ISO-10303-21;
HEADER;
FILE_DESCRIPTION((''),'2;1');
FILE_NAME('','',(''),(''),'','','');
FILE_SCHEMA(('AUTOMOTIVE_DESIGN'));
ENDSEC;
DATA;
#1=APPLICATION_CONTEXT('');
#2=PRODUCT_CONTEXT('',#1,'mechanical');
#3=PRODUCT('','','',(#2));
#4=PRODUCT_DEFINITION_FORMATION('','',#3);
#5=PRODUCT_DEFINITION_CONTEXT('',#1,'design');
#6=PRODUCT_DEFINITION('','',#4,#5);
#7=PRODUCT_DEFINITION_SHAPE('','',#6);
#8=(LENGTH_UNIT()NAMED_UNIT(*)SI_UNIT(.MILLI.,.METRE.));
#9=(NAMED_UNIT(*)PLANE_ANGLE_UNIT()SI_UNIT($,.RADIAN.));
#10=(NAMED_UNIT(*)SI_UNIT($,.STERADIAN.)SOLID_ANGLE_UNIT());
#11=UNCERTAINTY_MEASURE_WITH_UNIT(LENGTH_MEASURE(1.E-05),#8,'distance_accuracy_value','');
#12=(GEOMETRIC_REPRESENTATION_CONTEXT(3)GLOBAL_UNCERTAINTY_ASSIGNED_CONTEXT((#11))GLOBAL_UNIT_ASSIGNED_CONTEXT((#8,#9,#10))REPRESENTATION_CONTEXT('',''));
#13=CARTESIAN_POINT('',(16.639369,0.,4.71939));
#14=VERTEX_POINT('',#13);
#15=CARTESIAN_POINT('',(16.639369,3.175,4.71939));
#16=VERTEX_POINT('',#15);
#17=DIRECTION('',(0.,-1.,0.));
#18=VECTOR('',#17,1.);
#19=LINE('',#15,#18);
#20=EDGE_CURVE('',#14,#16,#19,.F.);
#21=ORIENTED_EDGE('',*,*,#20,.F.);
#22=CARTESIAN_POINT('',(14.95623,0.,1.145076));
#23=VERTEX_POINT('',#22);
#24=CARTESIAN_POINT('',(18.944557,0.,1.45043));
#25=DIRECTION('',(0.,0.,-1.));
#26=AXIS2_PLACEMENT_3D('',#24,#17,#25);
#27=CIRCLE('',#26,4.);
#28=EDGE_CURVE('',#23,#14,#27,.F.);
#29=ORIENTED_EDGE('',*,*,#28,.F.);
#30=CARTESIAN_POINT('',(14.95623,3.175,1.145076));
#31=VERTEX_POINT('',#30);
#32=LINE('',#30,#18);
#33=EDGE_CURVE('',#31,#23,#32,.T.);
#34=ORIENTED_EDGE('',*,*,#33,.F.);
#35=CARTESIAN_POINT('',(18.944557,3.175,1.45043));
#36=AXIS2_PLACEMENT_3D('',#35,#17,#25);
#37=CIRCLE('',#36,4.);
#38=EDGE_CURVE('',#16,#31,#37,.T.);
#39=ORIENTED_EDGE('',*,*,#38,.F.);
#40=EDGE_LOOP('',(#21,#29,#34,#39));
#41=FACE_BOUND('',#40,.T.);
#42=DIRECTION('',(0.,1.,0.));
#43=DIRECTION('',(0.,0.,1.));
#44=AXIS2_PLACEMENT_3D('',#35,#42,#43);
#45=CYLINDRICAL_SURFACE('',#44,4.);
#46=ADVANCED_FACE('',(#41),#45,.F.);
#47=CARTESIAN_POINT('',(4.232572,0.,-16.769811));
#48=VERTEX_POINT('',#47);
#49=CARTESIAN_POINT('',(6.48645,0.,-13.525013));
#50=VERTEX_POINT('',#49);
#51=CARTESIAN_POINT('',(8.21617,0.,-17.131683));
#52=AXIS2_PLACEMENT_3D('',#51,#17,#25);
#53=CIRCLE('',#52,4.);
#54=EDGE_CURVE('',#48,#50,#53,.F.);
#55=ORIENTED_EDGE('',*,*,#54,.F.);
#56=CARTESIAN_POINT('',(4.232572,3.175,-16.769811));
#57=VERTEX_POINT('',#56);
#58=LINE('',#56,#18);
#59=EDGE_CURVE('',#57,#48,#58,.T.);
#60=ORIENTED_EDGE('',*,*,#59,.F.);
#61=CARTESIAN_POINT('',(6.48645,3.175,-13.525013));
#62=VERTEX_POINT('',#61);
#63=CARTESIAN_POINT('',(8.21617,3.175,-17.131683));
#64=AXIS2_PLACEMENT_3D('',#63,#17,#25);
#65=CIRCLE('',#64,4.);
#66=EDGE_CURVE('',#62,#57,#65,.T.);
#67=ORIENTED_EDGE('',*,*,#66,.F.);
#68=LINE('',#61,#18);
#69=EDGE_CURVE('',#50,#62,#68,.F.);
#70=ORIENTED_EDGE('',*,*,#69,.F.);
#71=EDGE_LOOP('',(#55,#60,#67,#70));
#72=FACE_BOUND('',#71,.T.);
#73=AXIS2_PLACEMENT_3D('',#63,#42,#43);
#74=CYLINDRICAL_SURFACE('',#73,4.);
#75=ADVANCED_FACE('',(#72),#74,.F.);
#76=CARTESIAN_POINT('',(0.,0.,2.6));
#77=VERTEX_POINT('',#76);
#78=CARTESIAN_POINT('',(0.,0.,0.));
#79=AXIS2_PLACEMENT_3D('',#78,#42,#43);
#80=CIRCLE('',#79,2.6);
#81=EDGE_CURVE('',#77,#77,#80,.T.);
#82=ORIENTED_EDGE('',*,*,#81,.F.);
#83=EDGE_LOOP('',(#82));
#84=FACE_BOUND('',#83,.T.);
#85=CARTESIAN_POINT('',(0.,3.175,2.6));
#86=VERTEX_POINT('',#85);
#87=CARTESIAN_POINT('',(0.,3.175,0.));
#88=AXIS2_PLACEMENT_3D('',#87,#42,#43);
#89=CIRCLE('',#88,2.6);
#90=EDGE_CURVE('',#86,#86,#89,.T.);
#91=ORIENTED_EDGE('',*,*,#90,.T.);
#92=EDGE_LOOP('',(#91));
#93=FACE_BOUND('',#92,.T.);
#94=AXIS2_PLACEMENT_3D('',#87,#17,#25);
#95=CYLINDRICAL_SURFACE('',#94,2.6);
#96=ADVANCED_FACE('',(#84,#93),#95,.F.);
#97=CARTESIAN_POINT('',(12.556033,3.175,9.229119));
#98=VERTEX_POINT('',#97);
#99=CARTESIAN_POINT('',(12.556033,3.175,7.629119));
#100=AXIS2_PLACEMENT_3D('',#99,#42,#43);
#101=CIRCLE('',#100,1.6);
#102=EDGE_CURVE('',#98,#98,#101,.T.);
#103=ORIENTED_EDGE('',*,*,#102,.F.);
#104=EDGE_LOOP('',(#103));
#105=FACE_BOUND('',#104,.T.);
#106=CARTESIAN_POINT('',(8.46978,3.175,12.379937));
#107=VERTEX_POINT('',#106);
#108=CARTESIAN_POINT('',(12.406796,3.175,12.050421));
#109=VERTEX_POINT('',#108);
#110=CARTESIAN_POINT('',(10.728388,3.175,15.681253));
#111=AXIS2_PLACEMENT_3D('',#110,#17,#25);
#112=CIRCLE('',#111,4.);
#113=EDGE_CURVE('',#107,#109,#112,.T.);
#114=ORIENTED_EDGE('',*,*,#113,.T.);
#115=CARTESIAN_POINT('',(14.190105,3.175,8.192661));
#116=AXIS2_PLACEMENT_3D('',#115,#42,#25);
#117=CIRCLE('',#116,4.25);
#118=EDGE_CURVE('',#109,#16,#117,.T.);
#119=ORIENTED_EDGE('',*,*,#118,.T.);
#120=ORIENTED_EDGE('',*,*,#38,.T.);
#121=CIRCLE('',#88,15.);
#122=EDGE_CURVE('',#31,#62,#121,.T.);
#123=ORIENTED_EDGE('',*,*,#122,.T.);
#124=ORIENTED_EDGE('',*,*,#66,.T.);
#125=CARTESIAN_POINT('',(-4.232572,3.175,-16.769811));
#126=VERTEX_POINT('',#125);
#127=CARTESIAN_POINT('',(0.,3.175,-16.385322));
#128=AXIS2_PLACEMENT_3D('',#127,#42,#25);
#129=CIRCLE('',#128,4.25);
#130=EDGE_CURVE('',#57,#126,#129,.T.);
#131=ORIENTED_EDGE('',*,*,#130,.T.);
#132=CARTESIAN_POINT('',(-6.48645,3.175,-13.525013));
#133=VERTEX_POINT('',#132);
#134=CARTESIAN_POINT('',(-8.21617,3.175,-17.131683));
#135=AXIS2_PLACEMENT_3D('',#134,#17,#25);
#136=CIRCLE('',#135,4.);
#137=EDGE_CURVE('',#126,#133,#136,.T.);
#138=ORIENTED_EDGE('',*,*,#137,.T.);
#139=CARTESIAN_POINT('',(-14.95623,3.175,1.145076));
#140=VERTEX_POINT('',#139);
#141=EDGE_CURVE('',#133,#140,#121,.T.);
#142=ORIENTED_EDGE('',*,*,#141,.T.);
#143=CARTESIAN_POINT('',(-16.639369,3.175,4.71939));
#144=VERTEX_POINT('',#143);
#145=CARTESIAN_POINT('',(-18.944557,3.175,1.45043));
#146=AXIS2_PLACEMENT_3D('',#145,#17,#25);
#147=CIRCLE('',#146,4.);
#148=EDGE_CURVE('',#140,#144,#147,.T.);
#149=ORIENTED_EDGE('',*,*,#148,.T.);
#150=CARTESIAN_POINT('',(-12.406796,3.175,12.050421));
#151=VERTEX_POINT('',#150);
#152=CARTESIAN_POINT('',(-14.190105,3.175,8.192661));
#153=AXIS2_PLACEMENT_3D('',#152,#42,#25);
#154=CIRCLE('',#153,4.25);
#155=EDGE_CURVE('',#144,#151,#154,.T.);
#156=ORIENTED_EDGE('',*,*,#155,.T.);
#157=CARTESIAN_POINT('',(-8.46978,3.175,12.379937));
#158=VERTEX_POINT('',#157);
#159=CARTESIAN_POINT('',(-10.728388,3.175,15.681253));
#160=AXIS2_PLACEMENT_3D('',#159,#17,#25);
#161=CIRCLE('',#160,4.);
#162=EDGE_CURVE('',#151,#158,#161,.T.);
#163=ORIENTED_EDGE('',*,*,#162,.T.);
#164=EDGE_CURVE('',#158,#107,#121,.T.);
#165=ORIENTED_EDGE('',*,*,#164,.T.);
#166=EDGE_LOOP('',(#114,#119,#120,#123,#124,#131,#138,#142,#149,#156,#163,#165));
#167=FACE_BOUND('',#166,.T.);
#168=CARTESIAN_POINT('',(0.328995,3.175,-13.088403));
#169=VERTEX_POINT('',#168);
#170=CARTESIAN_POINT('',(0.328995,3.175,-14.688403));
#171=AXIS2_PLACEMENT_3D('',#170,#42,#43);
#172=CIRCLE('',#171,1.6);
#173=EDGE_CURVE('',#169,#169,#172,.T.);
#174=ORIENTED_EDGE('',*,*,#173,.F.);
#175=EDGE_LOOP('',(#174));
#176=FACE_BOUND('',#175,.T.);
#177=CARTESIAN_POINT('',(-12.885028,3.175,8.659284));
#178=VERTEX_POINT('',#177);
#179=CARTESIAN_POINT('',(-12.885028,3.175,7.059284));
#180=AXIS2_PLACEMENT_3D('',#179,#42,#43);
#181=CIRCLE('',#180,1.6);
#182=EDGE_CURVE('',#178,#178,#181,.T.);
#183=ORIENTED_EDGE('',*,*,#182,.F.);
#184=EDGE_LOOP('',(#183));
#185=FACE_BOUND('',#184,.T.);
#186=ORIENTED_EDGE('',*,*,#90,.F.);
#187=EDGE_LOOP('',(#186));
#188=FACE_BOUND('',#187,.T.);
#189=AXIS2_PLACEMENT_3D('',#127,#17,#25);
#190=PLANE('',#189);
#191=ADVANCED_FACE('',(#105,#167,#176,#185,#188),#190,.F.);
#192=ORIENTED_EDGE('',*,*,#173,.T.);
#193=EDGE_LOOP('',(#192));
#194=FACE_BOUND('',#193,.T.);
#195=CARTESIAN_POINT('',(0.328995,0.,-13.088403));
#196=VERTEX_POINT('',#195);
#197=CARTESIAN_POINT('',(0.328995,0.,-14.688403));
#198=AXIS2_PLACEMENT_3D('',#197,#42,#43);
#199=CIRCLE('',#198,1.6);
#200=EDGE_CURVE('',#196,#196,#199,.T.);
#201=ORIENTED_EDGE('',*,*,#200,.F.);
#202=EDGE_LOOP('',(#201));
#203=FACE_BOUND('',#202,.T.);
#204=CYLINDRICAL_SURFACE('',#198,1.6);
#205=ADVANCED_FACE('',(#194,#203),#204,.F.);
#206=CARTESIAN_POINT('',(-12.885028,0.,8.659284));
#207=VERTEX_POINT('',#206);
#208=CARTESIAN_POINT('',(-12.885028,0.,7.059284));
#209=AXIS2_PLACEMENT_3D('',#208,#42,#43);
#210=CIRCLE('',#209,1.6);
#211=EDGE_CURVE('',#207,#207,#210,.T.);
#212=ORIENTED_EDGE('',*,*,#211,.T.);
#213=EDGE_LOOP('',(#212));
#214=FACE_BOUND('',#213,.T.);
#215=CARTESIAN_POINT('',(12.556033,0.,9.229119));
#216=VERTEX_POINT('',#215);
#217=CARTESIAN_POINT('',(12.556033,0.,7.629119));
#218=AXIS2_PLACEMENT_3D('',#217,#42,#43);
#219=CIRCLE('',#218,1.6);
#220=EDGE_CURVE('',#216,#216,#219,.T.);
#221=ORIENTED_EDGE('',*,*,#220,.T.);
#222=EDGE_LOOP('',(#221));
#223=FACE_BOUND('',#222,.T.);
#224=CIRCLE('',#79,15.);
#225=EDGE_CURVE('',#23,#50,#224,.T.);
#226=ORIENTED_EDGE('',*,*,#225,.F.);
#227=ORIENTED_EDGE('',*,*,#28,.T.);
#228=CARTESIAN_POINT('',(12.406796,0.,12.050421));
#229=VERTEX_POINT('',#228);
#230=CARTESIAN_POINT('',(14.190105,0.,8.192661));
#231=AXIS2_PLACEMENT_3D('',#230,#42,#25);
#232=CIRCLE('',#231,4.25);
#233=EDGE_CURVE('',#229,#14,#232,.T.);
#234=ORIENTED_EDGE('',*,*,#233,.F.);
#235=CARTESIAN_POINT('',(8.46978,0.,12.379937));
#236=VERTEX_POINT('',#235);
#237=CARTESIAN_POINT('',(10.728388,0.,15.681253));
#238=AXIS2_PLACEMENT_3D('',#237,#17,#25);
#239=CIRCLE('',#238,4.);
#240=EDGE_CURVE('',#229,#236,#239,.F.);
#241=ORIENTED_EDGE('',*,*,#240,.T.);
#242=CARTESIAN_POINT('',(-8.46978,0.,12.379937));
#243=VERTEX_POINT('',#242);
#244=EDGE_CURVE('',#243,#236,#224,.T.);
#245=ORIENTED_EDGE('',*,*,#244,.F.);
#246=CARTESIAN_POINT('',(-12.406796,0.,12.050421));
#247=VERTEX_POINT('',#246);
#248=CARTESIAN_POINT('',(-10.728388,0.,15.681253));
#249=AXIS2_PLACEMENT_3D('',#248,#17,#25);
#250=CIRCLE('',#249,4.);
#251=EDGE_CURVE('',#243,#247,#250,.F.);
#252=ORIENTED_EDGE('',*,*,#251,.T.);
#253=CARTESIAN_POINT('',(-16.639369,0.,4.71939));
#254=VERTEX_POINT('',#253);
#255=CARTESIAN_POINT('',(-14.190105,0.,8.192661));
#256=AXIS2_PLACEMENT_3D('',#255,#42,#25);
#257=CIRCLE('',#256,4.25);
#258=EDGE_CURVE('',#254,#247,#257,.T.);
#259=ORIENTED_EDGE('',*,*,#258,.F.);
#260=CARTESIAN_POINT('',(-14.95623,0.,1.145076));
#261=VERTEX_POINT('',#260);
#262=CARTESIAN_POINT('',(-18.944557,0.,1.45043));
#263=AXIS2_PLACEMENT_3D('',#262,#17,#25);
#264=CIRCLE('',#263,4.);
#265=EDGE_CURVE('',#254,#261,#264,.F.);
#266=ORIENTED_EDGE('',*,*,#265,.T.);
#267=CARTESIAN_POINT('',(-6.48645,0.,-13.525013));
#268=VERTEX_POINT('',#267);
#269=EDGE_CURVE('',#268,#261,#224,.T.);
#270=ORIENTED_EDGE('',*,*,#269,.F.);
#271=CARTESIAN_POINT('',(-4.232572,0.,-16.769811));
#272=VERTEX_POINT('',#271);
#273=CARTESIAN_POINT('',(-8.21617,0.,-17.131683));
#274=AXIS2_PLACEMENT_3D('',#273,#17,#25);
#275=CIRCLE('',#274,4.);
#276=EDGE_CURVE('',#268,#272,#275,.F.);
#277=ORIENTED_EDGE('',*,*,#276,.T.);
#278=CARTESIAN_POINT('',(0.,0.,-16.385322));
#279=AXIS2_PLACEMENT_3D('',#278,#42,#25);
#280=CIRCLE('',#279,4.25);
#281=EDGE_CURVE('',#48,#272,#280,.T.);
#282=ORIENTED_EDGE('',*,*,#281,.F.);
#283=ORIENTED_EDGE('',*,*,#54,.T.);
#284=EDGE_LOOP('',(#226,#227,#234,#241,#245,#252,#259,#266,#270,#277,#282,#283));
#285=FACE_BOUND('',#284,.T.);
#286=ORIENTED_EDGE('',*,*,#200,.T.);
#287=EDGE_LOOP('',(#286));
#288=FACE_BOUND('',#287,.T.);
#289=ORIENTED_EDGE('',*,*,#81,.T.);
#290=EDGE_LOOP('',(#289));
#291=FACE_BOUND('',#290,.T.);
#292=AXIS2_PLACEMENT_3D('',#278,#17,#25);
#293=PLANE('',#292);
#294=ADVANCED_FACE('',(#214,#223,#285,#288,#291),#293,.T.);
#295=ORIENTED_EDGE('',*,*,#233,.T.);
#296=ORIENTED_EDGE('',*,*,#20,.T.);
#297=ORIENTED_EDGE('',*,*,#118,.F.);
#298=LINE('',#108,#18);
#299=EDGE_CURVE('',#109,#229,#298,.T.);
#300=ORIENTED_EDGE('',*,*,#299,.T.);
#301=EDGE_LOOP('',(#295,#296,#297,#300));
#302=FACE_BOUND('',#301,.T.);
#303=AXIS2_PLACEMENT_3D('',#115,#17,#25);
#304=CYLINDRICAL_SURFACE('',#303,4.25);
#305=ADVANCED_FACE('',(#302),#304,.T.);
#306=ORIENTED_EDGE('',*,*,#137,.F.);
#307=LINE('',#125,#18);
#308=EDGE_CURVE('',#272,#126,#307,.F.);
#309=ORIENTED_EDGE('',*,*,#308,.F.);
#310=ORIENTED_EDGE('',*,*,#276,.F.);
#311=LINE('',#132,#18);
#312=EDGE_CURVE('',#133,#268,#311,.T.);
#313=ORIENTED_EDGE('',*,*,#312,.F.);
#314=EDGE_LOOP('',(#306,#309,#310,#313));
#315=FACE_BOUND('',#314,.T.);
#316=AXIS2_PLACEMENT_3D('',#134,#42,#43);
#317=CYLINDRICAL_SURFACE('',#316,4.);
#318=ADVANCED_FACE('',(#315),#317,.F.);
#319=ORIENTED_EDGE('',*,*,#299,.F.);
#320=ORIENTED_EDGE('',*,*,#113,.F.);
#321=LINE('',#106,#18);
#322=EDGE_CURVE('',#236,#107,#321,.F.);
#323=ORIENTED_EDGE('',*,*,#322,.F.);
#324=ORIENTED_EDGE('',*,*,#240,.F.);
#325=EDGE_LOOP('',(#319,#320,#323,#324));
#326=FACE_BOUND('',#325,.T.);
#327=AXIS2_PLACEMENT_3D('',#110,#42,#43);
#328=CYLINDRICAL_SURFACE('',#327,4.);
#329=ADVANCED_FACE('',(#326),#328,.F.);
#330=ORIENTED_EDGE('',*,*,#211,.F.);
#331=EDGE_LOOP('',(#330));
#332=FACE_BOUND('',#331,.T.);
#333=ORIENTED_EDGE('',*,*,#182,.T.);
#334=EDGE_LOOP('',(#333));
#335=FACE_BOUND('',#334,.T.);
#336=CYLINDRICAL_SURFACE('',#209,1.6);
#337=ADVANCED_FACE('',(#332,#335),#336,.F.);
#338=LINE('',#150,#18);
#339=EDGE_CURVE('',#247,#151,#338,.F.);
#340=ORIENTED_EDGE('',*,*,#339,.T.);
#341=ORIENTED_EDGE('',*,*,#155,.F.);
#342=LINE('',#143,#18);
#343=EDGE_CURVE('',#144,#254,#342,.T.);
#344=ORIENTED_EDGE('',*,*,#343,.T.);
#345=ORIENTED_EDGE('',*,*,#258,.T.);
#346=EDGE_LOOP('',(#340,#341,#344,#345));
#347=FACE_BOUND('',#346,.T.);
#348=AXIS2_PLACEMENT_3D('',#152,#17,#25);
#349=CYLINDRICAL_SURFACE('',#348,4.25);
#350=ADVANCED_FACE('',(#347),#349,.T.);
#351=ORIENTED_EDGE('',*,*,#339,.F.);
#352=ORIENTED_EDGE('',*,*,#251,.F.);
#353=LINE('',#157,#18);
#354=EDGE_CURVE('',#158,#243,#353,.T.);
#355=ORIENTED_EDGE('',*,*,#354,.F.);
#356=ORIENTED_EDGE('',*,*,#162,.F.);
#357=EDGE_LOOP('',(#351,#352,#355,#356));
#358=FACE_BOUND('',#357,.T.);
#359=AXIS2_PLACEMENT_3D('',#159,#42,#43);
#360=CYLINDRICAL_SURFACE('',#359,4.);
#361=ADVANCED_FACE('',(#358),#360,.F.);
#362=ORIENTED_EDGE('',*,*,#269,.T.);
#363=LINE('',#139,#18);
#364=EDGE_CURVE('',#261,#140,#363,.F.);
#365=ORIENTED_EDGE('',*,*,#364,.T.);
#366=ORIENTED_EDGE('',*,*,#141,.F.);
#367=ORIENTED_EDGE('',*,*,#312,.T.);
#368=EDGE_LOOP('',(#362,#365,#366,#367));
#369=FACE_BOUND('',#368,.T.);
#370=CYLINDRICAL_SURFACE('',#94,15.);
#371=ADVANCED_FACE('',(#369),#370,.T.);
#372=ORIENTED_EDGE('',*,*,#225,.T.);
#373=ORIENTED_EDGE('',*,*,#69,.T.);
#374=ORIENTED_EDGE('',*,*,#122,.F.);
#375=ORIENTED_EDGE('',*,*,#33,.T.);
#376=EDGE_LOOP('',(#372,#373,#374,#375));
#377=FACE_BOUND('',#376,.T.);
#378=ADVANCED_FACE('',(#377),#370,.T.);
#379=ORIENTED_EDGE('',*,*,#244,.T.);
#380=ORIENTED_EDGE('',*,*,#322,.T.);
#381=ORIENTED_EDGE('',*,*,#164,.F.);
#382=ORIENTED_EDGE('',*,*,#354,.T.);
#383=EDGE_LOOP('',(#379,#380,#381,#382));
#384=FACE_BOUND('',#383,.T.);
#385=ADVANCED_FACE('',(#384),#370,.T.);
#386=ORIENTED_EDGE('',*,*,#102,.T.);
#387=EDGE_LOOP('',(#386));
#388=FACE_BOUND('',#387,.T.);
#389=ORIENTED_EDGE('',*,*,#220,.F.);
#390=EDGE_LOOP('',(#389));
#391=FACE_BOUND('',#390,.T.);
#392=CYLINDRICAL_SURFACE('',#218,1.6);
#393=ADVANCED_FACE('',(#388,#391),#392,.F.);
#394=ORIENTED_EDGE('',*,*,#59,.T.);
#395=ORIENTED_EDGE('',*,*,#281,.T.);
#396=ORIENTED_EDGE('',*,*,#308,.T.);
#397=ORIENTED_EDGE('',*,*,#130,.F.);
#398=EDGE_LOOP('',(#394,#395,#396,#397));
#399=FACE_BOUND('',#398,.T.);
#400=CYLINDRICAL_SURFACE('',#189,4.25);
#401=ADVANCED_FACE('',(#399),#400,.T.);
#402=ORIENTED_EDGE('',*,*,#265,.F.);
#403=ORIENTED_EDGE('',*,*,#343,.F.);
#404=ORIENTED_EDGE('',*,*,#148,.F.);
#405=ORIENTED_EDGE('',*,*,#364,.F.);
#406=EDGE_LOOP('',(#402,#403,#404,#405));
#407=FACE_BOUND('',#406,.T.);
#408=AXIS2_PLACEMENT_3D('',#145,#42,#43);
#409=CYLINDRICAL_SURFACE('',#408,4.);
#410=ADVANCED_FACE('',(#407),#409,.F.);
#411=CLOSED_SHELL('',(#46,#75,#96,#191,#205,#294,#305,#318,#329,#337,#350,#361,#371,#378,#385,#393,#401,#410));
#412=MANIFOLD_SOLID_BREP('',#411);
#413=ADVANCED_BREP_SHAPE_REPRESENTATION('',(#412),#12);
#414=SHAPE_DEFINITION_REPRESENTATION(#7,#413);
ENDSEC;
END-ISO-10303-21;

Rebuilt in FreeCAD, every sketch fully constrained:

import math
import FreeCAD as App
import Part
import Sketcher
from FreeCAD import Vector
Q = App.Units.Quantity


def edges_at(feature, points):
    """Names of the edges that pass closest to the given points."""
    edges = feature.Shape.Edges
    near = lambda p: min(range(len(edges)), key=lambda i: edges[i].distToShape(Part.Vertex(*p))[0])
    return sorted({f"Edge{near(p) + 1}" for p in points})

doc = App.newDocument("Part")
params = doc.addObject("Spreadsheet::Sheet", "Params")
for row, (alias, value) in enumerate([
    ("sketch1_radius", "15 mm"),
    ("sketch1_diameter", "5.2 mm"),
    ("sketch1_height", "2 mm"),
    ("sketch1_radius2", "4.25 mm"),
    ("sketch1_length", "2 mm"),
    ("pad1_length", "3.175 mm"),
    ("fillet_radius", "4 mm"),
    ("sketch2_diameter", "3.2 mm"),
], start=1):
    params.set(f"A{row}", alias)
    params.set(f"B{row}", "=" + value)
    params.setAlias(f"B{row}", alias)

body = doc.addObject("PartDesign::Body", "Body")

# Sketch on XZ plane
sketch1 = body.newObject("Sketcher::SketchObject", "Sketch")
sketch1.AttachmentSupport = (doc.getObject("XZ_Plane"), [""])
sketch1.MapMode = "FlatFace"
sketch1.addGeometry([
    Part.LineSegment(Vector(-4.2, -16.4, 0), Vector(-4.2, -14.4, 0)),  # 0
    Part.ArcOfCircle(Part.Circle(Vector(0, 0, 0), Vector(0, 0, 1), 15), math.radians(166), math.radians(254)),  # 1
    Part.LineSegment(Vector(-14.6, 3.5, 0), Vector(-16.3, 4.5, 0)),  # 2
    Part.ArcOfCircle(Part.Circle(Vector(-14.2, 8.2, 0), Vector(0, 0, 1), 4.2), math.radians(60), math.radians(240)),  # 3
    Part.LineSegment(Vector(-12.1, 11.9, 0), Vector(-10.3, 10.9, 0)),  # 4
    Part.ArcOfCircle(Part.Circle(Vector(0, 0, 0), Vector(0, 0, 1), 15), math.radians(46), math.radians(134)),  # 5
    Part.LineSegment(Vector(10.3, 10.9, 0), Vector(12.1, 11.9, 0)),  # 6
    Part.ArcOfCircle(Part.Circle(Vector(14.2, 8.2, 0), Vector(0, 0, 1), 4.2), math.radians(-60), math.radians(120)),  # 7
    Part.LineSegment(Vector(16.3, 4.5, 0), Vector(14.6, 3.5, 0)),  # 8
    Part.ArcOfCircle(Part.Circle(Vector(0, 0, 0), Vector(0, 0, 1), 15), math.radians(-74), math.radians(14)),  # 9
    Part.LineSegment(Vector(4.2, -14.4, 0), Vector(4.2, -16.4, 0)),  # 10
    Part.ArcOfCircle(Part.Circle(Vector(0, -16.4, 0), Vector(0, 0, 1), 4.2), math.radians(180), math.radians(360)),  # 11
    Part.Circle(Vector(0, 0, 0), Vector(0, 0, 1), 2.6),  # 12
], False)
sketch1.addConstraint([
    Sketcher.Constraint("Coincident", 0, 2, 1, 2),
    Sketcher.Constraint("Coincident", 1, 1, 2, 1),
    Sketcher.Constraint("Tangent", 2, 2, 3, 2),
    Sketcher.Constraint("Tangent", 3, 1, 4, 1),
    Sketcher.Constraint("Coincident", 4, 2, 5, 2),
    Sketcher.Constraint("Coincident", 5, 1, 6, 1),
    Sketcher.Constraint("Tangent", 6, 2, 7, 2),
    Sketcher.Constraint("Tangent", 7, 1, 8, 1),
    Sketcher.Constraint("Coincident", 8, 2, 9, 2),
    Sketcher.Constraint("Coincident", 9, 1, 10, 1),
    Sketcher.Constraint("Tangent", 10, 2, 11, 2),
    Sketcher.Constraint("Tangent", 11, 1, 0, 1),
    Sketcher.Constraint("Vertical", 0),
    Sketcher.Constraint("Vertical", 10),
    Sketcher.Constraint("Coincident", 1, 3, -1, 1),
    Sketcher.Constraint("Coincident", 5, 3, -1, 1),
    Sketcher.Constraint("Coincident", 9, 3, -1, 1),
    Sketcher.Constraint("Coincident", 12, 3, -1, 1),
    Sketcher.Constraint("Equal", 1, 5),
    Sketcher.Constraint("Equal", 3, 7),
    Sketcher.Constraint("Equal", 5, 9),
    Sketcher.Constraint("Equal", 7, 11),
    Sketcher.Constraint("Symmetric", 3, 3, 7, 3, -2),
    Sketcher.Constraint("PointOnObject", 11, 3, -2),
    Sketcher.Constraint("Parallel", 2, 4),
    Sketcher.Constraint("Parallel", 6, 8),
    Sketcher.Constraint("Horizontal", 4, 2, 5, 1),
    Sketcher.Constraint("Equal", 2, 4),
    Sketcher.Constraint("Radius", 1, Q("15 mm")),
    Sketcher.Constraint("Diameter", 12, Q("5.2 mm")),
    Sketcher.Constraint("DistanceY", 0, 1, 0, 2, Q("2 mm")),
    Sketcher.Constraint("Angle", 2, Q("150 deg")),
    Sketcher.Constraint("Radius", 3, Q("4.25 mm")),
    Sketcher.Constraint("Distance", 2, Q("2 mm")),
])
sketch1.setExpression("Constraints[28]", "Params.sketch1_radius")
sketch1.setExpression("Constraints[29]", "Params.sketch1_diameter")
sketch1.setExpression("Constraints[30]", "Params.sketch1_height")
sketch1.setExpression("Constraints[32]", "Params.sketch1_radius2")
sketch1.setExpression("Constraints[33]", "Params.sketch1_length")
pad1 = body.newObject("PartDesign::Pad", "Pad")
pad1.Profile = sketch1
pad1.setExpression("Length", "Params.pad1_length")
pad1.Reversed = True
doc.recompute()

fillet = body.newObject("PartDesign::Fillet", "Fillet")
fillet.Base = (pad1, edges_at(pad1, [
    (-14.583, 1.587, 3.512),
    (-4.25, 1.587, -14.385),
    (4.25, 1.587, -14.385),
    (14.583, 1.587, 3.512),
    (10.333, 1.587, 10.873),
    (-10.333, 1.587, 10.873),
]))
fillet.setExpression("Radius", "Params.fillet_radius")

# Sketch on XZ plane
sketch2 = body.newObject("Sketcher::SketchObject", "Sketch001")
sketch2.AttachmentSupport = (doc.getObject("XZ_Plane"), [""])
sketch2.MapMode = "FlatFace"
sketch2.AttachmentOffset = App.Placement(Vector(0, 0, -3.175), App.Rotation())
sketch2.addGeometry([
    Part.Circle(Vector(-12.9, 7.1, 0), Vector(0, 0, 1), 1.6),
    Part.Circle(Vector(12.6, 7.6, 0), Vector(0, 0, 1), 1.6),
    Part.Circle(Vector(0.3, -14.7, 0), Vector(0, 0, 1), 1.6),
], False)
sketch2.addConstraint([
    Sketcher.Constraint("Equal", 0, 1),
    Sketcher.Constraint("Equal", 1, 2),
    Sketcher.Constraint("Diameter", 0, Q("3.2 mm")),
    Sketcher.Constraint("DistanceY", -1, 1, 1, 3, Q("7.629119 mm")),
    Sketcher.Constraint("DistanceX", 0, 3, 1, 3, Q("25.44106 mm")),
    Sketcher.Constraint("DistanceX", 0, 3, -1, 1, Q("12.885028 mm")),
    Sketcher.Constraint("DistanceY", -1, 1, 0, 3, Q("7.059284 mm")),
    Sketcher.Constraint("DistanceX", -1, 1, 2, 3, Q("0.328995 mm")),
    Sketcher.Constraint("DistanceY", 2, 3, -1, 1, Q("14.688403 mm")),
])
sketch2.setExpression("Constraints[2]", "Params.sketch2_diameter")
pocket1 = body.newObject("PartDesign::Pocket", "Pocket")
pocket1.Profile = sketch2
pocket1.Type = "ThroughAll"
pocket1.Reversed = True

doc.recompute()
